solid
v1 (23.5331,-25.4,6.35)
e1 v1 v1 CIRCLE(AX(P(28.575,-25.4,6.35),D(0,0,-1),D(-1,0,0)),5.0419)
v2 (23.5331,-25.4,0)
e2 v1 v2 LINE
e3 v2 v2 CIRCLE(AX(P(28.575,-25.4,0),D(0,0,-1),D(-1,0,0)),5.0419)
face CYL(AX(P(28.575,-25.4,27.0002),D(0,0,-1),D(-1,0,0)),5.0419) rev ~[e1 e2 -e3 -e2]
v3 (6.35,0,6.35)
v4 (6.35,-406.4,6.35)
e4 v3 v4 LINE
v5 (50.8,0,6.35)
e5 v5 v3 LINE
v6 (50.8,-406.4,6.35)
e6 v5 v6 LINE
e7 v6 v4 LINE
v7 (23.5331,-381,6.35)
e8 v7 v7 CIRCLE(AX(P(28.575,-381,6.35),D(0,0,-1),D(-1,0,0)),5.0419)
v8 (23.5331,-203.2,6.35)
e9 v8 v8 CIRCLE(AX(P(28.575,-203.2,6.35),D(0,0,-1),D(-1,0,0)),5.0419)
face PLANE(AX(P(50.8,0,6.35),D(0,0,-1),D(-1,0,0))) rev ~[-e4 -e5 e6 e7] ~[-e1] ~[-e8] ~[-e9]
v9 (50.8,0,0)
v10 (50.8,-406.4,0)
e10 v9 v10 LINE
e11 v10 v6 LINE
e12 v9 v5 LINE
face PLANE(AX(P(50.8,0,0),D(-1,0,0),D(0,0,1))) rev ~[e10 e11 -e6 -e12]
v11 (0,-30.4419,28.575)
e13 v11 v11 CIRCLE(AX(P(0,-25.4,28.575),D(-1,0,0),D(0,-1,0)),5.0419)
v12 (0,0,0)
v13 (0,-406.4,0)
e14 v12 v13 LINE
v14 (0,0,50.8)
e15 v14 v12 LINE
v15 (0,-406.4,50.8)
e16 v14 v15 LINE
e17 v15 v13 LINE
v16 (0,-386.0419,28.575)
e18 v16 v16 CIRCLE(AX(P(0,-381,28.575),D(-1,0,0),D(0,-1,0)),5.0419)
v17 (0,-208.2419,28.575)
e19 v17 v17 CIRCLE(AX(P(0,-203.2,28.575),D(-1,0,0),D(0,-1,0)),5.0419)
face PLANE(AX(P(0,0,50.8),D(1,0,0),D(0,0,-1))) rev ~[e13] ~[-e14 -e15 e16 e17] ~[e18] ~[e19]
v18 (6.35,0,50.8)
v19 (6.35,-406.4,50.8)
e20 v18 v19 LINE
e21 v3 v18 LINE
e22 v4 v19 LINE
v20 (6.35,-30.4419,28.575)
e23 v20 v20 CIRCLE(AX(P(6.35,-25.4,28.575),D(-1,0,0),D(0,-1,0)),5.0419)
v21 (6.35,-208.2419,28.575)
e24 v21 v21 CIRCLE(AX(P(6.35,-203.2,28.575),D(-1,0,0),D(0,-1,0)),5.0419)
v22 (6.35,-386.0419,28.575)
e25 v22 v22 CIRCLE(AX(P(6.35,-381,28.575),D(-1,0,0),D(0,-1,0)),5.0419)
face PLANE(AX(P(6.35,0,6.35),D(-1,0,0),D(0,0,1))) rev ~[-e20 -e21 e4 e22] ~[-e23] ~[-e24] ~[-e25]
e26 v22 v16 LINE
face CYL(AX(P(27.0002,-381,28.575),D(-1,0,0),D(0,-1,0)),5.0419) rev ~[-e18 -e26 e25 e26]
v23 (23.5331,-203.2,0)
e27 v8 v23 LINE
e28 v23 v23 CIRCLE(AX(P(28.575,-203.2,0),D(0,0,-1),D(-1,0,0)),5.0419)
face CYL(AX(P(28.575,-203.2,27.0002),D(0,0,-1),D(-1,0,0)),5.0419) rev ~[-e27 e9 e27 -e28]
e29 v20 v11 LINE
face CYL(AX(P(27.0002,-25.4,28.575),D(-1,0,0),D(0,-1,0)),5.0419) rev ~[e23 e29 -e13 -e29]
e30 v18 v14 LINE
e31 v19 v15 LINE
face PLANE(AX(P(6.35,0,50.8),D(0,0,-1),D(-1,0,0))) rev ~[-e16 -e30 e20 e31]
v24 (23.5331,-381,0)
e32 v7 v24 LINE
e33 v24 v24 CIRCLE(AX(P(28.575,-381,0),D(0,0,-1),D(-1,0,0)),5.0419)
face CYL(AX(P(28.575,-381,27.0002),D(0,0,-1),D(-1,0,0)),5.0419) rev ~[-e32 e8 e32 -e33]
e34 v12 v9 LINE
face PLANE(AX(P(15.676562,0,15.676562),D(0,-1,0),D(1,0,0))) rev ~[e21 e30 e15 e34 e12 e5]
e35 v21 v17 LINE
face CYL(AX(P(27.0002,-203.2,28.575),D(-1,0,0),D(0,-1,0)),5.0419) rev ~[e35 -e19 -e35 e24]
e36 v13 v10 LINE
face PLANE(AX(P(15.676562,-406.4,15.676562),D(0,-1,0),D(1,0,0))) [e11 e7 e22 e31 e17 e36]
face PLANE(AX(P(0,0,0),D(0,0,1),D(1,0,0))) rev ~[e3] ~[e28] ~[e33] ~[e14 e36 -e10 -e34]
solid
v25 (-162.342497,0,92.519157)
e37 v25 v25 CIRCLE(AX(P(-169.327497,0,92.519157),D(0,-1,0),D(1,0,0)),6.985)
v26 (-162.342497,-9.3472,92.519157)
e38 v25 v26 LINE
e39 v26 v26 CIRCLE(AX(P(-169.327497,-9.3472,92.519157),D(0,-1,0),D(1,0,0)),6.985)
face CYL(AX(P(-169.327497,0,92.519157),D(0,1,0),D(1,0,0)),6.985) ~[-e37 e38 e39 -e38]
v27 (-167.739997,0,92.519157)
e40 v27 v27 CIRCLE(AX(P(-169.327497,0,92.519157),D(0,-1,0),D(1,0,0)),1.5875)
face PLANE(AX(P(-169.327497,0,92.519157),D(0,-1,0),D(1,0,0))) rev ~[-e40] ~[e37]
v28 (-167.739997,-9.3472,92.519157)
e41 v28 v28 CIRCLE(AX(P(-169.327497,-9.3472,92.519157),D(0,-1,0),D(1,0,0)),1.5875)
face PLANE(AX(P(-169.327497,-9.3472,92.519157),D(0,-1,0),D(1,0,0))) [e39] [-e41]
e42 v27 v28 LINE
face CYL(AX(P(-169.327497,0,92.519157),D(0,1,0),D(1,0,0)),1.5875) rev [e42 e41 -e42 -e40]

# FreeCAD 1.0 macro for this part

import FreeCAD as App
import Part
import Sketcher

V = App.Vector
Q = App.Units.Quantity

doc = App.newDocument("Part")
body = doc.addObject("PartDesign::Body", "Body")

# Sketch on XZ plane
sketch1 = body.newObject("Sketcher::SketchObject", "Sketch")
sketch1.AttachmentSupport = (doc.getObject("XZ_Plane"), [""])
sketch1.MapMode = "FlatFace"
sketch1.addGeometry(Part.LineSegment(V(0, 51, 0), V(0, 0, 0)), False)
sketch1.addGeometry(Part.LineSegment(V(0, 0, 0), V(51, 0, 0)), False)
sketch1.addGeometry(Part.LineSegment(V(51, 0, 0), V(51, 6, 0)), False)
sketch1.addGeometry(Part.LineSegment(V(51, 6, 0), V(6, 6, 0)), False)
sketch1.addGeometry(Part.LineSegment(V(6, 6, 0), V(6, 51, 0)), False)
sketch1.addGeometry(Part.LineSegment(V(6, 51, 0), V(0, 51, 0)), False)
sketch1.addConstraint(Sketcher.Constraint("Coincident", 0, 2, 1, 1))
sketch1.addConstraint(Sketcher.Constraint("Coincident", 1, 2, 2, 1))
sketch1.addConstraint(Sketcher.Constraint("Coincident", 2, 2, 3, 1))
sketch1.addConstraint(Sketcher.Constraint("Coincident", 3, 2, 4, 1))
sketch1.addConstraint(Sketcher.Constraint("Coincident", 4, 2, 5, 1))
sketch1.addConstraint(Sketcher.Constraint("Coincident", 5, 2, 0, 1))
sketch1.addConstraint(Sketcher.Constraint("Vertical", 0))
sketch1.addConstraint(Sketcher.Constraint("Horizontal", 1))
sketch1.addConstraint(Sketcher.Constraint("Vertical", 2))
sketch1.addConstraint(Sketcher.Constraint("Horizontal", 3))
sketch1.addConstraint(Sketcher.Constraint("Vertical", 4))
sketch1.addConstraint(Sketcher.Constraint("Horizontal", 5))
sketch1.addConstraint(Sketcher.Constraint("Coincident", 0, 2, -1, 1))
sketch1.addConstraint(Sketcher.Constraint("Equal", 1, 0))
sketch1.addConstraint(Sketcher.Constraint("Equal", 5, 2))
sketch1.addConstraint(Sketcher.Constraint("DistanceX", 1, 1, 1, 2, Q("2 in")))
sketch1.addConstraint(Sketcher.Constraint("DistanceX", 3, 2, 3, 1, Q("1.75 in")))
pad1 = body.newObject("PartDesign::Pad", "Pad")
pad1.Profile = sketch1
pad1.Length = Q("16 in")

# Sketch on XY plane
sketch2 = body.newObject("Sketcher::SketchObject", "Sketch001")
sketch2.AttachmentSupport = (doc.getObject("XY_Plane"), [""])
sketch2.MapMode = "FlatFace"
sketch2.AttachmentOffset = App.Placement(V(0, 0, 0.25 * 25.4), App.Rotation())
sketch2.addGeometry(Part.Circle(V(29, -381, 0), V(0, 0, 1), 5), False)
sketch2.addGeometry(Part.Circle(V(29, -203, 0), V(0, 0, 1), 5), False)
sketch2.addGeometry(Part.Circle(V(29, -25, 0), V(0, 0, 1), 5), False)
sketch2.addConstraint(Sketcher.Constraint("Equal", 0, 1))
sketch2.addConstraint(Sketcher.Constraint("Equal", 1, 2))
sketch2.addConstraint(Sketcher.Constraint("Vertical", 0, 3, 1, 3))
sketch2.addConstraint(Sketcher.Constraint("Vertical", 1, 3, 2, 3))
sketch2.addConstraint(Sketcher.Constraint("Diameter", 0, Q("0.397 in")))
sketch2.addConstraint(Sketcher.Constraint("DistanceY", 0, 3, -1, 1, Q("15 in")))
sketch2.addConstraint(Sketcher.Constraint("DistanceY", 1, 3, -1, 1, Q("8 in")))
sketch2.addConstraint(Sketcher.Constraint("DistanceY", 2, 3, -1, 1, Q("1 in")))
sketch2.addConstraint(Sketcher.Constraint("DistanceX", -1, 1, 0, 3, Q("1.125 in")))
doc.recompute()
hole = body.newObject("PartDesign::Hole", "Hole")
hole.Profile = sketch2
hole.ThreadType = "None"
hole.Diameter = Q("0.397 in")
hole.DepthType = "Dimension"
hole.Depth = Q("0.813 in")
hole.DrillPoint = "Angled"
hole.DrillPointAngle = 118

# Sketch on YZ plane
sketch3 = body.newObject("Sketcher::SketchObject", "Sketch002")
sketch3.AttachmentSupport = (doc.getObject("YZ_Plane"), [""])
sketch3.MapMode = "FlatFace"
sketch3.AttachmentOffset = App.Placement(V(0, 0, 0.25 * 25.4), App.Rotation())
sketch3.addGeometry(Part.Circle(V(-203, 29, 0), V(0, 0, 1), 5), False)
sketch3.addGeometry(Part.Circle(V(-25, 29, 0), V(0, 0, 1), 5), False)
sketch3.addGeometry(Part.Circle(V(-381, 29, 0), V(0, 0, 1), 5), False)
sketch3.addConstraint(Sketcher.Constraint("Equal", 0, 1))
sketch3.addConstraint(Sketcher.Constraint("Equal", 1, 2))
sketch3.addConstraint(Sketcher.Constraint("Horizontal", 0, 3, 1, 3))
sketch3.addConstraint(Sketcher.Constraint("Horizontal", 1, 3, 2, 3))
sketch3.addConstraint(Sketcher.Constraint("Diameter", 0, Q("0.397 in")))
sketch3.addConstraint(Sketcher.Constraint("DistanceX", 0, 3, -1, 1, Q("8 in")))
sketch3.addConstraint(Sketcher.Constraint("DistanceX", 1, 3, -1, 1, Q("1 in")))
sketch3.addConstraint(Sketcher.Constraint("DistanceX", 2, 3, -1, 1, Q("15 in")))
sketch3.addConstraint(Sketcher.Constraint("DistanceY", -1, 1, 0, 3, Q("1.125 in")))
doc.recompute()
hole2 = body.newObject("PartDesign::Hole", "Hole001")
hole2.Profile = sketch3
hole2.ThreadType = "None"
hole2.Diameter = Q("0.397 in")
hole2.DepthType = "Dimension"
hole2.Depth = Q("0.813 in")
hole2.DrillPoint = "Angled"
hole2.DrillPointAngle = 118
body2 = doc.addObject("PartDesign::Body", "Body001")

# Sketch on XZ plane
sketch4 = body2.newObject("Sketcher::SketchObject", "Sketch003")
sketch4.AttachmentSupport = (doc.getObject("XZ_Plane001"), [""])
sketch4.MapMode = "FlatFace"
sketch4.addGeometry(Part.Circle(V(-169.3, 92.5, 0), V(0, 0, 1), 7), False)
sketch4.addGeometry(Part.Circle(V(-169.3, 92.5, 0), V(0, 0, 1), 1.6), False)
sketch4.addConstraint(Sketcher.Constraint("Coincident", 1, 3, 0, 3))
sketch4.addConstraint(Sketcher.Constraint("Diameter", 0, Q("0.55 in")))
sketch4.addConstraint(Sketcher.Constraint("Diameter", 1, Q("0.125 in")))
sketch4.addConstraint(Sketcher.Constraint("DistanceX", 0, 3, -1, 1, 169.327497))
sketch4.addConstraint(Sketcher.Constraint("DistanceY", -1, 1, 0, 3, 92.519157))
pad2 = body2.newObject("PartDesign::Pad", "Pad001")
pad2.Profile = sketch4
pad2.Length = Q("0.368 in")

doc.recompute()
